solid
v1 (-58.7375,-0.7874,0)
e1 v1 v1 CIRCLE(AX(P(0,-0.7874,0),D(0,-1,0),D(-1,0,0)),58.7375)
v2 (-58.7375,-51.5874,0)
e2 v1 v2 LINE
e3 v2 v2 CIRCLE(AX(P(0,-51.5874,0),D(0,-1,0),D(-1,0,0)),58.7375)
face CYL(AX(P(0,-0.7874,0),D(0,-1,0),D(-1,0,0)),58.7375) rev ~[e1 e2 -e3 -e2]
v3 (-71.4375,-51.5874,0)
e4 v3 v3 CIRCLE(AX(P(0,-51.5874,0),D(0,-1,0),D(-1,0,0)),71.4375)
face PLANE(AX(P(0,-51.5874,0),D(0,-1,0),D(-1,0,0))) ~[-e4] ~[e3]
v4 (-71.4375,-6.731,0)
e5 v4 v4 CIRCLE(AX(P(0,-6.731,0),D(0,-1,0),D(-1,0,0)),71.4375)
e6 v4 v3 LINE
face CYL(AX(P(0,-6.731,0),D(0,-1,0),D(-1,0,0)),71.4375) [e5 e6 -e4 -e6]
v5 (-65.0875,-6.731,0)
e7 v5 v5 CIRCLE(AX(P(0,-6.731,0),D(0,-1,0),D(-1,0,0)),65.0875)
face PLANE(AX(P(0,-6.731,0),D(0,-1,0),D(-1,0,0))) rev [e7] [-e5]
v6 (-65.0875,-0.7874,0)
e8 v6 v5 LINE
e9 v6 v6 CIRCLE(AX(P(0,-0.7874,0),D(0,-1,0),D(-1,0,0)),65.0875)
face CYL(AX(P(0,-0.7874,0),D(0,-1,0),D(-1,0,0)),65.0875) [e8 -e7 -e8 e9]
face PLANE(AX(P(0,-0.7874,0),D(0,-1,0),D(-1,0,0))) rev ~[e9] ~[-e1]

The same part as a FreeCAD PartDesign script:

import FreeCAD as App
import Part
import Sketcher
Q = App.Units.Quantity


def add_polygon(sketch, points):
    """Adds a closed chain of lines whose ends are joined by coincident constraints."""
    first, n = sketch.GeometryCount, len(points)
    for a, b in zip(points, points[1:] + points[:1]):
        sketch.addGeometry(Part.LineSegment(App.Vector(*a, 0), App.Vector(*b, 0)), False)
    for i in range(n):
        sketch.addConstraint(Sketcher.Constraint("Coincident", first + i, 2, first + (i + 1) % n, 1))

doc = App.newDocument("Part")
body = doc.addObject("PartDesign::Body", "Body")

# Sketch on XY plane
sketch1 = body.newObject("Sketcher::SketchObject", "Sketch")
sketch1.AttachmentSupport = (doc.getObject("XY_Plane"), [""])
sketch1.MapMode = "FlatFace"
add_polygon(sketch1, [(-71, -52), (-59, -52), (-59, -1), (-65, -1), (-65, -7), (-71, -7)])  # lines 0-5
sketch1.addConstraint(Sketcher.Constraint("Horizontal", 0))
sketch1.addConstraint(Sketcher.Constraint("Vertical", 1))
sketch1.addConstraint(Sketcher.Constraint("Horizontal", 2))
sketch1.addConstraint(Sketcher.Constraint("Vertical", 3))
sketch1.addConstraint(Sketcher.Constraint("Horizontal", 4))
sketch1.addConstraint(Sketcher.Constraint("Vertical", 5))
sketch1.addConstraint(Sketcher.Constraint("Equal", 2, 4))
sketch1.addConstraint(Sketcher.Constraint("DistanceY", 1, 1, 1, 2, Q("2 in")))
sketch1.addConstraint(Sketcher.Constraint("DistanceX", 0, 1, 0, 2, Q("0.5 in")))
sketch1.addConstraint(Sketcher.Constraint("DistanceY", 3, 2, 3, 1, Q("0.234 in")))
sketch1.addConstraint(Sketcher.Constraint("DistanceX", 0, 2, -1, 1, Q("2.3125 in")))
sketch1.addConstraint(Sketcher.Constraint("DistanceY", 0, 2, -1, 1, Q("2.031 in")))
revolution = body.newObject("PartDesign::Revolution", "Revolution")
revolution.Profile = sketch1
revolution.ReferenceAxis = (sketch1, ["V_Axis"])
revolution.Angle = 360

doc.recompute()
